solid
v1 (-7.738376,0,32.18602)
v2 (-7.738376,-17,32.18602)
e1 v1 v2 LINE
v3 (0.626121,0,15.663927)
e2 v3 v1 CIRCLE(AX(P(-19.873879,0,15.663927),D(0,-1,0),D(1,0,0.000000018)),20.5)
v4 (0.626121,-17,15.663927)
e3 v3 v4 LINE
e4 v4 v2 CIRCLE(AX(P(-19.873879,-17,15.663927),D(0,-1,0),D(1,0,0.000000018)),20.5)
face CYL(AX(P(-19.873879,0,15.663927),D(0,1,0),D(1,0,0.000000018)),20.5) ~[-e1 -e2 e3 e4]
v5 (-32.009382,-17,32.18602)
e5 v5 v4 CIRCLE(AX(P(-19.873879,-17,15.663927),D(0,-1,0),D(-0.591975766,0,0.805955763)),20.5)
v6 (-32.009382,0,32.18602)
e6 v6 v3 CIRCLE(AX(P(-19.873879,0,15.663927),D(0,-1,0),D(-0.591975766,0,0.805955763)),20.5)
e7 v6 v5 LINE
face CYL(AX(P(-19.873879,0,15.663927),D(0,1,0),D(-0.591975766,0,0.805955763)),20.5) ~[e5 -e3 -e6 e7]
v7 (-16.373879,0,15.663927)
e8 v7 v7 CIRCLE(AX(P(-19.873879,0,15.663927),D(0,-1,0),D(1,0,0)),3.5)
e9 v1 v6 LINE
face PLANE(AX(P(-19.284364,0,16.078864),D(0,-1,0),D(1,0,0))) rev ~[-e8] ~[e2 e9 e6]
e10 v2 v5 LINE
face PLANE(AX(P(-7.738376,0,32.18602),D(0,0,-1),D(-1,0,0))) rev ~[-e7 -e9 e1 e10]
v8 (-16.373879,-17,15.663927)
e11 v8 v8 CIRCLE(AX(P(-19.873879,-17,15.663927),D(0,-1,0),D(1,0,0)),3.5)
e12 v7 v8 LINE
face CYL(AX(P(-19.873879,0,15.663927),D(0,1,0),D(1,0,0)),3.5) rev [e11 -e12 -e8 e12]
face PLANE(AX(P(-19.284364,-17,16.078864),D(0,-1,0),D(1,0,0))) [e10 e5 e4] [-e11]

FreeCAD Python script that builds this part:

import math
import FreeCAD as App
import Part
import Sketcher
from FreeCAD import Vector

doc = App.newDocument("Part")
body = doc.addObject("PartDesign::Body", "Body")

# Sketch on XZ plane
sketch1 = body.newObject("Sketcher::SketchObject", "Sketch")
sketch1.AttachmentSupport = (doc.getObject("XZ_Plane"), [""])
sketch1.MapMode = "FlatFace"
sketch1.addGeometry([
    Part.ArcOfCircle(Part.Circle(Vector(-19.873879, 15.663927, 0), Vector(0, 0, 1), 20.5), math.radians(126.29734), math.radians(360)),
    Part.ArcOfCircle(Part.Circle(Vector(-19.873879, 15.663927, 0), Vector(0, 0, 1), 20.5), math.radians(0.000001), math.radians(53.70266)),
    Part.LineSegment(Vector(-7.738376, 32.18602, 0), Vector(-32.009382, 32.18602, 0)),
    Part.Circle(Vector(-19.873879, 15.663927, 0), Vector(0, 0, 1), 3.5),
], False)
sketch1.addConstraint([
    Sketcher.Constraint("Tangent", 0, 2, 1, 1),
    Sketcher.Constraint("Coincident", 1, 2, 2, 1),
    Sketcher.Constraint("Coincident", 2, 2, 0, 1),
    Sketcher.Constraint("Horizontal", 2),
    Sketcher.Constraint("Coincident", 3, 3, 0, 3),
    Sketcher.Constraint("Equal", 0, 1),
    Sketcher.Constraint("Horizontal", 3, 3, 0, 2),
    Sketcher.Constraint("Diameter", 3, 7.0),
    Sketcher.Constraint("Radius", 0, 20.5),
    Sketcher.Constraint("DistanceX", 2, 2, 2, 1, 24.271006),
    Sketcher.Constraint("DistanceX", 0, 3, -1, 1, 19.873879),
    Sketcher.Constraint("DistanceY", -1, 1, 1, 2, 32.18602),
])
pad1 = body.newObject("PartDesign::Pad", "Pad")
pad1.Profile = sketch1
pad1.Length = 17

doc.recompute()
